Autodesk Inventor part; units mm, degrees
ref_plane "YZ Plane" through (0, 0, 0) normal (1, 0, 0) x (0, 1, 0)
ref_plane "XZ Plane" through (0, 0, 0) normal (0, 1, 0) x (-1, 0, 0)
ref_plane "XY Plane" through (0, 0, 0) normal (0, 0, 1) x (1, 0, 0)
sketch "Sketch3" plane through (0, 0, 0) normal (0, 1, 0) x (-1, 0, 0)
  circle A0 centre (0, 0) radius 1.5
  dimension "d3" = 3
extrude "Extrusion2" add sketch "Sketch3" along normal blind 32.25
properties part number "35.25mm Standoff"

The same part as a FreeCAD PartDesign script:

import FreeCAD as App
import Part
import Sketcher
from FreeCAD import Vector
Q = App.Units.Quantity

doc = App.newDocument("Part")
params = doc.addObject("Spreadsheet::Sheet", "Params")
for row, (alias, value) in enumerate([
    ("sketch1_diameter", "3 mm"),
    ("pad1_length", "32.25 mm"),
], start=1):
    params.set(f"A{row}", alias)
    params.set(f"B{row}", "=" + value)
    params.setAlias(f"B{row}", alias)

body = doc.addObject("PartDesign::Body", "Body")

sketch1 = body.newObject("Sketcher::SketchObject", "Sketch")
sketch1.AttachmentSupport = (doc.getObject("XZ_Plane"), [""])
sketch1.MapMode = "FlatFace"
sketch1.addGeometry(Part.Circle(Vector(0, 0, 0), Vector(0, 0, 1), 1.5), False)
sketch1.addConstraint(Sketcher.Constraint("Coincident", 0, 3, -1, 1))
sketch1.addConstraint(Sketcher.Constraint("Diameter", 0, Q("3 mm")))
sketch1.setExpression("Constraints[1]", "Params.sketch1_diameter")
pad1 = body.newObject("PartDesign::Pad", "Pad")
pad1.Profile = sketch1
pad1.setExpression("Length", "Params.pad1_length")
pad1.Reversed = True

doc.recompute()
